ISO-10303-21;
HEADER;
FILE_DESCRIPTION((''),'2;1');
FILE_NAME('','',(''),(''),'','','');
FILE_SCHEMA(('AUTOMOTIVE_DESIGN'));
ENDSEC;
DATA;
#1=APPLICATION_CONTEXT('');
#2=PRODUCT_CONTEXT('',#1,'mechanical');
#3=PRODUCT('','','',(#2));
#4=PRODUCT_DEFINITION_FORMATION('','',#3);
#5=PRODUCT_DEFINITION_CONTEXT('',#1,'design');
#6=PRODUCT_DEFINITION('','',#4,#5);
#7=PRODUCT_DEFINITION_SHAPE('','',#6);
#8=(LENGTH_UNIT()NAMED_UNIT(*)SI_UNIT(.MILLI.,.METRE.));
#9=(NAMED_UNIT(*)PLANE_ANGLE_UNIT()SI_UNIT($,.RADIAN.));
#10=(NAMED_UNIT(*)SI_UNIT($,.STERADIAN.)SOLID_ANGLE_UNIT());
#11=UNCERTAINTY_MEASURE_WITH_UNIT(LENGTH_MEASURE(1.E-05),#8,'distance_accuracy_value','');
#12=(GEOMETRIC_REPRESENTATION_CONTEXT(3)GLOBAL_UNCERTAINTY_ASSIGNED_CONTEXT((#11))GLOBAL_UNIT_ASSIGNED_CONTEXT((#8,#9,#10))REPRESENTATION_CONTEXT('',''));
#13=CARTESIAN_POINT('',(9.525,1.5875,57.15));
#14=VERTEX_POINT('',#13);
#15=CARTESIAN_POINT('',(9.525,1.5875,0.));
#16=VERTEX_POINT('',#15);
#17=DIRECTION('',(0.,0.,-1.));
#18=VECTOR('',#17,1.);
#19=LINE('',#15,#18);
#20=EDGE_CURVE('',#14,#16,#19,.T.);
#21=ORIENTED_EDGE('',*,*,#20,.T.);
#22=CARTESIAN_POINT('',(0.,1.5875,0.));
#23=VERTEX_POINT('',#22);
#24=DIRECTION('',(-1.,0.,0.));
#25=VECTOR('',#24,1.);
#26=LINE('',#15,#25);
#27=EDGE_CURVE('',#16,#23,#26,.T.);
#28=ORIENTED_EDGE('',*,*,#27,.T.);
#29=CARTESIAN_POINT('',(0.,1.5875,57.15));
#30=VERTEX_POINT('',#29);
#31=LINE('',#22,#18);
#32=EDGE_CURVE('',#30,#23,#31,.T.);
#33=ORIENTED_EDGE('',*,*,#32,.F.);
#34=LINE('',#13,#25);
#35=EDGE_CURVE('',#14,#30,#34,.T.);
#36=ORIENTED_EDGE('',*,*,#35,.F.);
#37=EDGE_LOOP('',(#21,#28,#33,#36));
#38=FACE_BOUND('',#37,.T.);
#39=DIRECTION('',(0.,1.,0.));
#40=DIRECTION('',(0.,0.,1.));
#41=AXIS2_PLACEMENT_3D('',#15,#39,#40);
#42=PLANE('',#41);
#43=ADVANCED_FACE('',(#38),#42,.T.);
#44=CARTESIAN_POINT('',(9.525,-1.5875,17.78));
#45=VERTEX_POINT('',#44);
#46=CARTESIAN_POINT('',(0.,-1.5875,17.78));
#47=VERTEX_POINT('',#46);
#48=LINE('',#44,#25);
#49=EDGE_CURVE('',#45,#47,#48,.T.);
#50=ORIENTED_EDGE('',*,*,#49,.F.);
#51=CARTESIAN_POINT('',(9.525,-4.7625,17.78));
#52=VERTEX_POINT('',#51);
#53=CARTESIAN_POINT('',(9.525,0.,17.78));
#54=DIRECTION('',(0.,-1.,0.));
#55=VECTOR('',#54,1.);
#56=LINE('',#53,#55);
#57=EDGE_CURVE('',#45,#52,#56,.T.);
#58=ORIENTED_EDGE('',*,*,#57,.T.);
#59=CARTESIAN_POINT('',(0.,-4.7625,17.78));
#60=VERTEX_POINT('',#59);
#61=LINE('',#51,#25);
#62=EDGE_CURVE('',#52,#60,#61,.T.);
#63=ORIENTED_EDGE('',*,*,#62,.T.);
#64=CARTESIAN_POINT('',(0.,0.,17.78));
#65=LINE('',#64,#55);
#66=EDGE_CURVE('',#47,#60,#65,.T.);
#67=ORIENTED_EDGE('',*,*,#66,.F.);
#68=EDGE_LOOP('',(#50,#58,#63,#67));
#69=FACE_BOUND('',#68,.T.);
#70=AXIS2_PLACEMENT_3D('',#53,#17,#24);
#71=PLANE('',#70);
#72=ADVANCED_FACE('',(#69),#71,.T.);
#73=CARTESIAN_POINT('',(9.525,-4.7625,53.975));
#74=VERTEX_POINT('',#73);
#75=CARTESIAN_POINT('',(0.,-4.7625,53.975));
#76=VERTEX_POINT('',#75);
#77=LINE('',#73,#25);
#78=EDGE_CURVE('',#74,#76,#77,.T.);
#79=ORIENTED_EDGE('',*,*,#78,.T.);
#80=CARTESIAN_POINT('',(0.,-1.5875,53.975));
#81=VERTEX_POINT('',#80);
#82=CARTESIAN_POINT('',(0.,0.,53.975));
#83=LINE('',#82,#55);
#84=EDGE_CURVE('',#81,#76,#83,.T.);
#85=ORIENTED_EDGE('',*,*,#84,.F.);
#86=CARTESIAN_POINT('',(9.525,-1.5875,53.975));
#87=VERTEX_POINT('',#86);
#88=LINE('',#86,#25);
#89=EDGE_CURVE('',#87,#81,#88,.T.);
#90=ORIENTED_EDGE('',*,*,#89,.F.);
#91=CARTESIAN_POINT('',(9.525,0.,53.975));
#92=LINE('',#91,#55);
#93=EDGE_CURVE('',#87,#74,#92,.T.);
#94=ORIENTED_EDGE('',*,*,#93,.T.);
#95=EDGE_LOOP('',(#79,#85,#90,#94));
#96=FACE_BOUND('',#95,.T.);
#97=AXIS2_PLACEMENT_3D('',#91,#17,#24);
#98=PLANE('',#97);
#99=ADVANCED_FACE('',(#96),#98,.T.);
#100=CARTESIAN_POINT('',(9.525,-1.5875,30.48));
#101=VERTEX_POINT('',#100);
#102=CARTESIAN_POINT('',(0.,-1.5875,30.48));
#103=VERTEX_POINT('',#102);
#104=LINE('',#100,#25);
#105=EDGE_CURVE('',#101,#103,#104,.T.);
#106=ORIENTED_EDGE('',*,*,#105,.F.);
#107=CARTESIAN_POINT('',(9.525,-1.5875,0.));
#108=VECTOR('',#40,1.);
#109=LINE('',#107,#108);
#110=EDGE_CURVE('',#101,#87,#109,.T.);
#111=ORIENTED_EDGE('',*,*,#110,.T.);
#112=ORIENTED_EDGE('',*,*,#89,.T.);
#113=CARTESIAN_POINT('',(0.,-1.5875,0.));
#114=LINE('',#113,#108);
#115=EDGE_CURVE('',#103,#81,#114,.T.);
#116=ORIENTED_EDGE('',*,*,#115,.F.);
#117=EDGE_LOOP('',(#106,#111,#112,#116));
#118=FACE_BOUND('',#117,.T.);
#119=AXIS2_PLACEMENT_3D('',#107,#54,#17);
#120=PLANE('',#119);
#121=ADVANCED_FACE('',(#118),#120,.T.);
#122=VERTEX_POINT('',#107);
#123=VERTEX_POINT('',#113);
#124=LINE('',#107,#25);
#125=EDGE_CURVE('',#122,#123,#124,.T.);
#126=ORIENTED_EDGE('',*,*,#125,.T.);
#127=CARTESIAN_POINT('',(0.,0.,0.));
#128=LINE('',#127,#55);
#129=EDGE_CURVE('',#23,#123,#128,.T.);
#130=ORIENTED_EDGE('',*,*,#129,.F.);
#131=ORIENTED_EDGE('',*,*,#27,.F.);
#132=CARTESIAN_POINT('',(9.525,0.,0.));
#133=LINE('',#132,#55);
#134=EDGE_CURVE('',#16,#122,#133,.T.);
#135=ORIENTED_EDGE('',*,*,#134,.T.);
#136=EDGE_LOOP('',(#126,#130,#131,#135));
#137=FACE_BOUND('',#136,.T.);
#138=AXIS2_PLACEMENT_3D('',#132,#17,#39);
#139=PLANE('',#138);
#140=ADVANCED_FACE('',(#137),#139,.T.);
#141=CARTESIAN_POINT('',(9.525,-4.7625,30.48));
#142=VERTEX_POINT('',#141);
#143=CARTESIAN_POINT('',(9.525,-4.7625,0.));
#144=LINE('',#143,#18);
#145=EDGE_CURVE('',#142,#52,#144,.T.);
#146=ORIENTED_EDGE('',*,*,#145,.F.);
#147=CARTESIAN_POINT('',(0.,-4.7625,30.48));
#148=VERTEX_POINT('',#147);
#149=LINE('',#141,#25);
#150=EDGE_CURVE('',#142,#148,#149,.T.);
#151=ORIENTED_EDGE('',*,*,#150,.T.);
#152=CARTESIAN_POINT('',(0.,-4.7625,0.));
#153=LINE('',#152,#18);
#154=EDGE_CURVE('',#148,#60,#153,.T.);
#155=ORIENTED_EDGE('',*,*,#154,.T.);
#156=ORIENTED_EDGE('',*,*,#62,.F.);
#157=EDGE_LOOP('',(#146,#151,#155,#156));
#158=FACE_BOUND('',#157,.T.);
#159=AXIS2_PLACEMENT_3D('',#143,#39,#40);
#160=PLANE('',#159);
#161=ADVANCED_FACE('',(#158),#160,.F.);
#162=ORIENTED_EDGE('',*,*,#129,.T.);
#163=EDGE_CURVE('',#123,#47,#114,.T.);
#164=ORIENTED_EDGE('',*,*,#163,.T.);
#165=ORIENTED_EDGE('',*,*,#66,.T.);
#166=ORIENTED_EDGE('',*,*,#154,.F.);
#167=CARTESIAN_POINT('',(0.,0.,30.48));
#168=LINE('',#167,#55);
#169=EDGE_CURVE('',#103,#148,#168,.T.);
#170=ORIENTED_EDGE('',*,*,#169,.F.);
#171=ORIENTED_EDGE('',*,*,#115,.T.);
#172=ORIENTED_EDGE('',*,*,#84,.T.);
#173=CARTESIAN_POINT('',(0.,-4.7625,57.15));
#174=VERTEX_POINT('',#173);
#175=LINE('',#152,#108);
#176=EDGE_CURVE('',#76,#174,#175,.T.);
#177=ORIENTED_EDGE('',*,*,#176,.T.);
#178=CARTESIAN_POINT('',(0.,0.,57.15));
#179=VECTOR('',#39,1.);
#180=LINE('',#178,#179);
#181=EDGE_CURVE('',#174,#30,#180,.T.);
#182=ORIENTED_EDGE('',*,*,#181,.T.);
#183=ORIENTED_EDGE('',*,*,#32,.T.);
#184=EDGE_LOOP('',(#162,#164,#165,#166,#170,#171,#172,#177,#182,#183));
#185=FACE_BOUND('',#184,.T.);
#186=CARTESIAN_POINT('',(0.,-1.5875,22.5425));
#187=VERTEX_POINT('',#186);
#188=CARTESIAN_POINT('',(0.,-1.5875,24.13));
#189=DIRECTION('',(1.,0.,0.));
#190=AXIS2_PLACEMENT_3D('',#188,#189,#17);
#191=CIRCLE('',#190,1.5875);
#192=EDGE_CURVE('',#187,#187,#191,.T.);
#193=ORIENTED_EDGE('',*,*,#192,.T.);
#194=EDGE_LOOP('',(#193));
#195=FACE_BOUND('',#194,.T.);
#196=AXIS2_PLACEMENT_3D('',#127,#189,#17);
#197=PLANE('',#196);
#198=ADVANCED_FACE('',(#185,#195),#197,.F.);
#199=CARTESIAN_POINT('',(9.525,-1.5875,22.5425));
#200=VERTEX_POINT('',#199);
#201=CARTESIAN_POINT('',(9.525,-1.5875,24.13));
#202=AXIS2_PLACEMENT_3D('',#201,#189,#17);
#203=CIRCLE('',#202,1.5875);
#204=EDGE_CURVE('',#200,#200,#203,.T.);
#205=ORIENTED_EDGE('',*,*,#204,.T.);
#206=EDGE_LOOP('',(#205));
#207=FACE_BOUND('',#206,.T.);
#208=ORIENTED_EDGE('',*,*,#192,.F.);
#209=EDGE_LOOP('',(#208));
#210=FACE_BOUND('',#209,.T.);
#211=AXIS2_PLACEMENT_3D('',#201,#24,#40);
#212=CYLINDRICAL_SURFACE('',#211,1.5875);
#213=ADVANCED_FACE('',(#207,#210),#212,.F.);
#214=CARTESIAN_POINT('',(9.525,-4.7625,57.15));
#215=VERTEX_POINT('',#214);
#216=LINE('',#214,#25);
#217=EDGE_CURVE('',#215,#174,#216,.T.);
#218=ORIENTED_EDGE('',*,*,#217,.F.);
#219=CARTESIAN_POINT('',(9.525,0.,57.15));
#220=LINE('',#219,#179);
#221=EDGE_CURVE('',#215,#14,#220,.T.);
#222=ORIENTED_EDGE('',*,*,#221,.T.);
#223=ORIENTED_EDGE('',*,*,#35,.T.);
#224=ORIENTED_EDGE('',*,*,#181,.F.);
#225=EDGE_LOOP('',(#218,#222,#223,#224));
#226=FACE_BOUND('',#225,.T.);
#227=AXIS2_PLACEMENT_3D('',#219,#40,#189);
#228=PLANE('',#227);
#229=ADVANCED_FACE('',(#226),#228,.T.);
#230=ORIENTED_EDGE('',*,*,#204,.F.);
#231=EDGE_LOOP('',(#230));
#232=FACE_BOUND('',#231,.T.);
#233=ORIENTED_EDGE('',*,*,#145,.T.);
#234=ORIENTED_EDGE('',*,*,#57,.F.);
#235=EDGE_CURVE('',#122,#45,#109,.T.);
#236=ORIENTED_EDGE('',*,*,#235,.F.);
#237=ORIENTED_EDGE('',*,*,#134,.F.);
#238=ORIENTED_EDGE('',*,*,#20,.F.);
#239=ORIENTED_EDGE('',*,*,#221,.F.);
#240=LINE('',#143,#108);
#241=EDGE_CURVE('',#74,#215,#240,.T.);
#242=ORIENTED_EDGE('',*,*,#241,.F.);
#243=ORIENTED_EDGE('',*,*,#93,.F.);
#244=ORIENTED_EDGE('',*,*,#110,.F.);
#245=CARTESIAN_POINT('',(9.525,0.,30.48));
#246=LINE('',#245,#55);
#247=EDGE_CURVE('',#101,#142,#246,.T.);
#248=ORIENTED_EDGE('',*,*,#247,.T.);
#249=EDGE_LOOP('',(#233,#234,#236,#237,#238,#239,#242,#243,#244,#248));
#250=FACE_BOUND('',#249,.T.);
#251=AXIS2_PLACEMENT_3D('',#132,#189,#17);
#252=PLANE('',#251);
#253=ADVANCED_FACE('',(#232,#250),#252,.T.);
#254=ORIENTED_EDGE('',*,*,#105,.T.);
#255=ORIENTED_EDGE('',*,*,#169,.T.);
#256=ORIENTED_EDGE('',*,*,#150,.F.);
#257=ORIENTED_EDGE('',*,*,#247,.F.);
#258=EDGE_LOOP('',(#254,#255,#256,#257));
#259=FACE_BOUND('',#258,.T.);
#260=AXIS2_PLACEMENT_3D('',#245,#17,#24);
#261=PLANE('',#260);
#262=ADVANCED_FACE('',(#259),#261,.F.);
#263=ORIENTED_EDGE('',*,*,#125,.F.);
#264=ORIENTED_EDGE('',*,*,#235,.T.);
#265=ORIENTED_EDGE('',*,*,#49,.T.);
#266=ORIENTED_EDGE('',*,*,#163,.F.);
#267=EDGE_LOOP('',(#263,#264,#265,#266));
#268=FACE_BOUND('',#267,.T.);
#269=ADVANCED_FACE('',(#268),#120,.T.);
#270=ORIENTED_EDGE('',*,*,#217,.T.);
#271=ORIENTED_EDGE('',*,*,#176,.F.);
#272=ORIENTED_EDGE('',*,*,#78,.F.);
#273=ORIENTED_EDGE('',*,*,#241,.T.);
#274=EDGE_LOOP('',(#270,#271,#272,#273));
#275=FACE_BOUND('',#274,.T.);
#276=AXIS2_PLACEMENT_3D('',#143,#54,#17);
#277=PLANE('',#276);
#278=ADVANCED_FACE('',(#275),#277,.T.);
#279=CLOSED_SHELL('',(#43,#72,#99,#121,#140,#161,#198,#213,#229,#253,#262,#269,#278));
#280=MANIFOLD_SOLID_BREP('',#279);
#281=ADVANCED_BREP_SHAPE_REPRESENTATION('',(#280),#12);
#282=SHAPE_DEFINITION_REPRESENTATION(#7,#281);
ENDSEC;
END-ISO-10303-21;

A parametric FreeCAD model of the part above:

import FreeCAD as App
import Part
import Sketcher
from FreeCAD import Vector
Q = App.Units.Quantity


def add_polygon(sketch, points):
    """Adds a closed chain of lines whose ends are joined by coincident constraints."""
    first, n = sketch.GeometryCount, len(points)
    for a, b in zip(points, points[1:] + points[:1]):
        sketch.addGeometry(Part.LineSegment(App.Vector(*a, 0), App.Vector(*b, 0)), False)
    for i in range(n):
        sketch.addConstraint(Sketcher.Constraint("Coincident", first + i, 2, first + (i + 1) % n, 1))

doc = App.newDocument("Part")
body = doc.addObject("PartDesign::Body", "Body")

# Sketch on YZ plane
sketch1 = doc.addObject("Sketcher::SketchObject", "Sketch")
body.addObject(sketch1)
sketch1.AttachmentSupport = (doc.YZ_Plane, [""])
sketch1.MapMode = "FlatFace"
add_polygon(sketch1, [(-1.5875, 0), (1.5875, 0), (1.5875, 57.15), (-4.7625, 57.15), (-4.7625, 53.975), (-1.5875, 53.975), (-1.5875, 30.48), (-4.7625, 30.48), (-4.7625, 17.78), (-1.5875, 17.78)])  # lines 0-9
sketch1.addGeometry(Part.Circle(Vector(-1.5875, 24.13, 0), Vector(0, 0, 1), 1.5875), False)  # 10
sketch1.addConstraint([
    Sketcher.Constraint("Horizontal", 0),
    Sketcher.Constraint("Vertical", 1),
    Sketcher.Constraint("Horizontal", 2),
    Sketcher.Constraint("Vertical", 3),
    Sketcher.Constraint("Horizontal", 4),
    Sketcher.Constraint("Vertical", 5),
    Sketcher.Constraint("Horizontal", 6),
    Sketcher.Constraint("Vertical", 7),
    Sketcher.Constraint("Horizontal", 8),
    Sketcher.Constraint("Vertical", 9),
    Sketcher.Constraint("Symmetric", 0, 2, 9, 2, -1, 1),
    Sketcher.Constraint("Vertical", 10, 3, 4, 2),
    Sketcher.Constraint("Vertical", 3, 2, 6, 2),
    Sketcher.Constraint("Vertical", 5, 2, 8, 2),
    Sketcher.Constraint("Equal", 0, 4),
    Sketcher.Constraint("Equal", 8, 3),
    Sketcher.Constraint("Diameter", 10, Q("0.125 in")),
    Sketcher.Constraint("DistanceY", 7, 2, 7, 1, Q("0.5 in")),
    Sketcher.Constraint("DistanceY", 9, 2, 9, 1, Q("0.7 in")),
    Sketcher.Constraint("DistanceX", 2, 2, 2, 1, Q("0.25 in")),
    Sketcher.Constraint("DistanceY", 1, 1, 1, 2, Q("2.25 in")),
    Sketcher.Constraint("DistanceY", 10, 3, 1, 2, Q("1.3 in")),
])
pad1 = doc.addObject("PartDesign::Pad", "Pad")
body.addObject(pad1)
pad1.Profile = sketch1
pad1.Length = Q("0.375 in")

doc.recompute()
